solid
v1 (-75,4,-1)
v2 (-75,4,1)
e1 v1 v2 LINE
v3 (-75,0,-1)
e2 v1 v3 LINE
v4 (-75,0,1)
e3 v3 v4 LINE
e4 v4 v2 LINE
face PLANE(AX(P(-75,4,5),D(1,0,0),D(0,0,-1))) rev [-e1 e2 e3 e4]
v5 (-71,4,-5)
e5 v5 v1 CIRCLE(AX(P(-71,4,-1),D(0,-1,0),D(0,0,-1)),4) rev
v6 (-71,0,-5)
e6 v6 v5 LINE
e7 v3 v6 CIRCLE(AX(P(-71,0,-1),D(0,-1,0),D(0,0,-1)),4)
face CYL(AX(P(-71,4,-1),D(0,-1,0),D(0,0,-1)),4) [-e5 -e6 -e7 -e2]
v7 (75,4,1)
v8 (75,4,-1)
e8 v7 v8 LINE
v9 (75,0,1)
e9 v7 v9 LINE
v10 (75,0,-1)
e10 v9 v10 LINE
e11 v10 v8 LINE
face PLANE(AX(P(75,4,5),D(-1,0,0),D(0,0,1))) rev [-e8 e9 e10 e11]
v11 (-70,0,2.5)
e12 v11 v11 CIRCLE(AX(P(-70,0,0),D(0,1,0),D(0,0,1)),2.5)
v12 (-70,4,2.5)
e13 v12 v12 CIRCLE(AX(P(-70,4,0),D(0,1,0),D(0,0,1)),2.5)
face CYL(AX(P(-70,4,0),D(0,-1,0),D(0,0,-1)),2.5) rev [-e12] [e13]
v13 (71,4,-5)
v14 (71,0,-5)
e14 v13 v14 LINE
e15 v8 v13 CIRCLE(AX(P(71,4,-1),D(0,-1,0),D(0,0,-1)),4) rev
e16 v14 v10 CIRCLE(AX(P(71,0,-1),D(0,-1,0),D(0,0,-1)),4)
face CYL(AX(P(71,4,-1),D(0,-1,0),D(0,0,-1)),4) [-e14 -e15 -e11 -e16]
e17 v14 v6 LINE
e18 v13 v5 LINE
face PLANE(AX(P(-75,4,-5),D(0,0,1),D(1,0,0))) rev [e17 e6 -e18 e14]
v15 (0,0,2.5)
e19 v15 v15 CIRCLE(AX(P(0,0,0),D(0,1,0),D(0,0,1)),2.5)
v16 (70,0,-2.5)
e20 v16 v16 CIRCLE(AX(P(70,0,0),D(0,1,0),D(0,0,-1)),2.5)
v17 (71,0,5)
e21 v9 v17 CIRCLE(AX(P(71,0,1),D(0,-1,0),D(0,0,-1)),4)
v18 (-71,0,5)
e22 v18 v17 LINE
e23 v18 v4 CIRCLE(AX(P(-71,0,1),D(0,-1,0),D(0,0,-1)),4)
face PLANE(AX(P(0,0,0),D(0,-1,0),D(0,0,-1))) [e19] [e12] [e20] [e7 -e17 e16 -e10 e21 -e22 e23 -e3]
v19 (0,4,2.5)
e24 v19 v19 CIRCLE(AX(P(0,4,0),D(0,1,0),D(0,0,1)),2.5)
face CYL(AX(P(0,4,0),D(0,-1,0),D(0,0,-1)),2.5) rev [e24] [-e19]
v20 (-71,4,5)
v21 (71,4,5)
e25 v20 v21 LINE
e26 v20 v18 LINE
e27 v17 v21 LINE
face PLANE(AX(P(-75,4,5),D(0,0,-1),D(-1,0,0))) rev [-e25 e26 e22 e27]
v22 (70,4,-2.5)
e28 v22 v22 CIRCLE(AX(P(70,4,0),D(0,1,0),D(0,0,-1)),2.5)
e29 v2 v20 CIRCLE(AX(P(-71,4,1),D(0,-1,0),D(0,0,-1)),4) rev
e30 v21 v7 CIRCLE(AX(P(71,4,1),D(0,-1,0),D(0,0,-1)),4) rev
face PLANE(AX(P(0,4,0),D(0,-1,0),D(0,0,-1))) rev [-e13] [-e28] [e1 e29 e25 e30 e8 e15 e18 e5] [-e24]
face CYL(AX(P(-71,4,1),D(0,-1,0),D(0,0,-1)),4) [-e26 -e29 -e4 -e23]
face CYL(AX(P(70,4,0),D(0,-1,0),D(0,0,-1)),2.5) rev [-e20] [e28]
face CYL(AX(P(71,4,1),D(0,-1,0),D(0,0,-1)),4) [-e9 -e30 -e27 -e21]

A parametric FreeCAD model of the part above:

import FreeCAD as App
import Part
import Sketcher


def edges_at(feature, points):
    """Names of the edges that pass closest to the given points."""
    edges = feature.Shape.Edges
    near = lambda p: min(range(len(edges)), key=lambda i: edges[i].distToShape(Part.Vertex(*p))[0])
    return sorted({f"Edge{near(p) + 1}" for p in points})


def add_polygon(sketch, points):
    """Adds a closed chain of lines whose ends are joined by coincident constraints."""
    first, n = sketch.GeometryCount, len(points)
    for a, b in zip(points, points[1:] + points[:1]):
        sketch.addGeometry(Part.LineSegment(App.Vector(*a, 0), App.Vector(*b, 0)), False)
    for i in range(n):
        sketch.addConstraint(Sketcher.Constraint("Coincident", first + i, 2, first + (i + 1) % n, 1))

doc = App.newDocument("Part")
body = doc.addObject("PartDesign::Body", "Body")

# Sketch on XZ plane
sketch1 = body.newObject("Sketcher::SketchObject", "Sketch")
sketch1.AttachmentSupport = (doc.getObject("XZ_Plane"), [""])
sketch1.MapMode = "FlatFace"
add_polygon(sketch1, [(-75, -5), (-75, 5), (75, 5), (75, -5)])  # lines 0-3
sketch1.addGeometry(Part.Circle(App.Vector(-70, 0, 0), App.Vector(0, 0, 1), 2.5), False)  # 4
sketch1.addGeometry(Part.Circle(App.Vector(0, 0, 0), App.Vector(0, 0, 1), 2.5), False)  # 5
sketch1.addGeometry(Part.Circle(App.Vector(70, 0, 0), App.Vector(0, 0, 1), 2.5), False)  # 6
sketch1.addConstraint(Sketcher.Constraint("Vertical", 0))
sketch1.addConstraint(Sketcher.Constraint("Horizontal", 1))
sketch1.addConstraint(Sketcher.Constraint("Vertical", 2))
sketch1.addConstraint(Sketcher.Constraint("Horizontal", 3))
sketch1.addConstraint(Sketcher.Constraint("Coincident", 5, 3, -1, 1))
sketch1.addConstraint(Sketcher.Constraint("Equal", 4, 5))
sketch1.addConstraint(Sketcher.Constraint("Equal", 5, 6))
sketch1.addConstraint(Sketcher.Constraint("Symmetric", 4, 3, 6, 3, -1, 1))
sketch1.addConstraint(Sketcher.Constraint("Symmetric", 0, 2, 2, 2, -1, 1))
sketch1.addConstraint(Sketcher.Constraint("PointOnObject", 4, 3, -1))
sketch1.addConstraint(Sketcher.Constraint("Diameter", 4, 5.0))
sketch1.addConstraint(Sketcher.Constraint("DistanceX", 1, 1, 1, 2, 150.0))
sketch1.addConstraint(Sketcher.Constraint("DistanceY", 0, 1, 0, 2, 10.0))
sketch1.addConstraint(Sketcher.Constraint("DistanceX", 4, 3, -1, 1, 70.0))
pad1 = body.newObject("PartDesign::Pad", "Pad")
pad1.Profile = sketch1
pad1.Length = 4
pad1.Reversed = True
doc.recompute()

fillet = body.newObject("PartDesign::Fillet", "Fillet")
fillet.Base = (pad1, edges_at(pad1, [
    (75, 2, 5),
    (-75, 2, 5),
    (-75, 2, -5),
    (75, 2, -5),
]))
fillet.Radius = 4

doc.recompute()
